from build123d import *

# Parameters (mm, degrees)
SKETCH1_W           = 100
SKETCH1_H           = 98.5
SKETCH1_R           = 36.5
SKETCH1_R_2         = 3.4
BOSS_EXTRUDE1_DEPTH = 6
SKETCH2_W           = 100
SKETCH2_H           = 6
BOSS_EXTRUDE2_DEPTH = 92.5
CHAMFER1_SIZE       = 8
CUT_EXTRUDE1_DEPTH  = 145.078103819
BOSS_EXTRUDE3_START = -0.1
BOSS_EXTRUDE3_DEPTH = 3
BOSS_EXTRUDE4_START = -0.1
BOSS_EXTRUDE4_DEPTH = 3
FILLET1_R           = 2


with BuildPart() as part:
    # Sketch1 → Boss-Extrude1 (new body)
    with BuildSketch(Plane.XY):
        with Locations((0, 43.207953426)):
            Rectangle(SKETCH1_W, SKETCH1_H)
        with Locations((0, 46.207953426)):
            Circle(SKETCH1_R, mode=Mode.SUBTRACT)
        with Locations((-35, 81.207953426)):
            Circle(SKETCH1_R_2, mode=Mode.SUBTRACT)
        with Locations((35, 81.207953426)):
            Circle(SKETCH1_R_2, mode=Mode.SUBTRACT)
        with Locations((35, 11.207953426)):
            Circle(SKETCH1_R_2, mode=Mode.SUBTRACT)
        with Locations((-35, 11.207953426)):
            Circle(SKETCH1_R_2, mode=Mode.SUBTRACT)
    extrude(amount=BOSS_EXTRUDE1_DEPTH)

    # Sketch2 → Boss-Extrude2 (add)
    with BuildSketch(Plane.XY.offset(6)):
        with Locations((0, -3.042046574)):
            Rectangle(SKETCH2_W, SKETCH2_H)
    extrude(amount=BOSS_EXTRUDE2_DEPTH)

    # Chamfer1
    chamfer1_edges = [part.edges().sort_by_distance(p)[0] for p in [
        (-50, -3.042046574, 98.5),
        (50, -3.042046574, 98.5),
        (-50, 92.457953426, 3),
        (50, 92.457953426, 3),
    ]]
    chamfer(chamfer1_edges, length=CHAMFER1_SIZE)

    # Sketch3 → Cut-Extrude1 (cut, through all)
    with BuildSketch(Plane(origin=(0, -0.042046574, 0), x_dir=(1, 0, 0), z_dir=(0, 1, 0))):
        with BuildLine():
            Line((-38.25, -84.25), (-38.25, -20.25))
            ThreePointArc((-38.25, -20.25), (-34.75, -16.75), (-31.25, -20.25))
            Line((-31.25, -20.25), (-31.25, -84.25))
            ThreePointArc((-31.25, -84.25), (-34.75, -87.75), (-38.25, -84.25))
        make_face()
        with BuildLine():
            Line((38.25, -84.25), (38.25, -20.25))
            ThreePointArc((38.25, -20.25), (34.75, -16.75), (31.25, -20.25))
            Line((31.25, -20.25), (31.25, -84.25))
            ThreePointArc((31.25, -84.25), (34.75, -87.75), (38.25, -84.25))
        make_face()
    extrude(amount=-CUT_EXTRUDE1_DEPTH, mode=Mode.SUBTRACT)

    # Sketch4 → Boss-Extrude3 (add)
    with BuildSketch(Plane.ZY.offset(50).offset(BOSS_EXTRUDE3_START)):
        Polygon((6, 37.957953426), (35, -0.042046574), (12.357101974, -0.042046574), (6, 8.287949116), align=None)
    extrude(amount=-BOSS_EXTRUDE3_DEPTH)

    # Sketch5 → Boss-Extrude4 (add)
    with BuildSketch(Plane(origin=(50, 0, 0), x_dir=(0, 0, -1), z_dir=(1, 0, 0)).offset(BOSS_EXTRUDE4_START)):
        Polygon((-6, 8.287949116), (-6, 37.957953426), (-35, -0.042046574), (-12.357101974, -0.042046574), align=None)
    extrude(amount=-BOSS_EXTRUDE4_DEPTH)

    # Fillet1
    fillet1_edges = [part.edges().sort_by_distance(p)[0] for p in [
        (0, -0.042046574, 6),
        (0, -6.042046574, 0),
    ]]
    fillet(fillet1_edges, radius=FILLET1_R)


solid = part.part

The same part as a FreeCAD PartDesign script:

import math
import FreeCAD as App
import Part
import Sketcher
from FreeCAD import Vector
Q = App.Units.Quantity


def edges_at(feature, points):
    """Names of the edges that pass closest to the given points."""
    edges = feature.Shape.Edges
    near = lambda p: min(range(len(edges)), key=lambda i: edges[i].distToShape(Part.Vertex(*p))[0])
    return sorted({f"Edge{near(p) + 1}" for p in points})


def add_polygon(sketch, points):
    """Adds a closed chain of lines whose ends are joined by coincident constraints."""
    first, n = sketch.GeometryCount, len(points)
    for a, b in zip(points, points[1:] + points[:1]):
        sketch.addGeometry(Part.LineSegment(App.Vector(*a, 0), App.Vector(*b, 0)), False)
    for i in range(n):
        sketch.addConstraint(Sketcher.Constraint("Coincident", first + i, 2, first + (i + 1) % n, 1))

doc = App.newDocument("Part")
body = doc.addObject("PartDesign::Body", "Body")

# Sketch on XY plane
sketch1 = doc.addObject("Sketcher::SketchObject", "Sketch")
body.addObject(sketch1)
sketch1.AttachmentSupport = (doc.XY_Plane, [""])
sketch1.MapMode = "FlatFace"
add_polygon(sketch1, [(-50, 92.5), (-50, -6), (50, -6), (50, 92.5)])  # lines 0-3
sketch1.addGeometry(Part.Circle(Vector(-35, 11.2, 0), Vector(0, 0, 1), 3.4), False)  # 4
sketch1.addGeometry(Part.Circle(Vector(35, 11.2, 0), Vector(0, 0, 1), 3.4), False)  # 5
sketch1.addGeometry(Part.Circle(Vector(-35, 81.2, 0), Vector(0, 0, 1), 3.4), False)  # 6
sketch1.addGeometry(Part.Circle(Vector(0, 46.2, 0), Vector(0, 0, 1), 36.5), False)  # 7
sketch1.addGeometry(Part.Circle(Vector(35, 81.2, 0), Vector(0, 0, 1), 3.4), False)  # 8
sketch1.addConstraint(Sketcher.Constraint("Vertical", 0))
sketch1.addConstraint(Sketcher.Constraint("Horizontal", 1))
sketch1.addConstraint(Sketcher.Constraint("Vertical", 2))
sketch1.addConstraint(Sketcher.Constraint("Horizontal", 3))
sketch1.addConstraint(Sketcher.Constraint("Equal", 4, 5))
sketch1.addConstraint(Sketcher.Constraint("Equal", 5, 6))
sketch1.addConstraint(Sketcher.Constraint("Equal", 6, 8))
sketch1.addConstraint(Sketcher.Constraint("Symmetric", 4, 3, 5, 3, -2))
sketch1.addConstraint(Sketcher.Constraint("Symmetric", 6, 3, 8, 3, -2))
sketch1.addConstraint(Sketcher.Constraint("PointOnObject", 7, 3, -2))
sketch1.addConstraint(Sketcher.Constraint("Vertical", 4, 3, 6, 3))
sketch1.addConstraint(Sketcher.Constraint("Diameter", 7, Q("73 mm")))
sketch1.addConstraint(Sketcher.Constraint("Diameter", 4, Q("6.8 mm")))
sketch1.addConstraint(Sketcher.Constraint("DistanceX", 1, 1, 1, 2, Q("100 mm")))
sketch1.addConstraint(Sketcher.Constraint("DistanceY", 0, 2, 0, 1, Q("98.5 mm")))
sketch1.addConstraint(Sketcher.Constraint("DistanceX", 4, 3, -1, 1, Q("35 mm")))
sketch1.addConstraint(Sketcher.Constraint("DistanceX", 0, 2, -1, 1, Q("50 mm")))
sketch1.addConstraint(Sketcher.Constraint("DistanceY", 4, 3, 6, 3, Q("70 mm")))
sketch1.addConstraint(Sketcher.Constraint("DistanceY", 4, 3, 7, 3, Q("35 mm")))
sketch1.addConstraint(Sketcher.Constraint("DistanceY", 0, 2, 4, 3, Q("17.25 mm")))
sketch1.addConstraint(Sketcher.Constraint("DistanceY", -1, 1, 4, 3, Q("11.207953 mm")))
pad1 = doc.addObject("PartDesign::Pad", "Pad")
body.addObject(pad1)
pad1.Profile = sketch1
pad1.Length = 6

# Sketch on XY plane
sketch2 = doc.addObject("Sketcher::SketchObject", "Sketch001")
body.addObject(sketch2)
sketch2.AttachmentSupport = (doc.XY_Plane, [""])
sketch2.MapMode = "FlatFace"
sketch2.AttachmentOffset = App.Placement(Vector(0, 0, 6), App.Rotation())
add_polygon(sketch2, [(-50, 0), (-50, -6), (50, -6), (50, 0)])  # lines 0-3
sketch2.addConstraint(Sketcher.Constraint("Vertical", 0))
sketch2.addConstraint(Sketcher.Constraint("Horizontal", 1))
sketch2.addConstraint(Sketcher.Constraint("Vertical", 2))
sketch2.addConstraint(Sketcher.Constraint("Horizontal", 3))
sketch2.addConstraint(Sketcher.Constraint("DistanceX", 1, 1, 1, 2, Q("100 mm")))
sketch2.addConstraint(Sketcher.Constraint("DistanceY", 0, 2, 0, 1, Q("6 mm")))
sketch2.addConstraint(Sketcher.Constraint("DistanceX", 0, 2, -1, 1, Q("50 mm")))
sketch2.addConstraint(Sketcher.Constraint("DistanceY", 0, 2, -1, 1, Q("6.042047 mm")))
pad2 = doc.addObject("PartDesign::Pad", "Pad001")
body.addObject(pad2)
pad2.Profile = sketch2
pad2.Length = 92.5
doc.recompute()

chamfer = doc.addObject("PartDesign::Chamfer", "Chamfer")
body.addObject(chamfer)
chamfer.Base = (pad2, edges_at(pad2, [
    (-50, -3.042, 98.5),
    (50, -3.042, 98.5),
    (-50, 92.458, 3),
    (50, 92.458, 3),
]))
chamfer.Size = 8

# Sketch on XZ plane
sketch3 = doc.addObject("Sketcher::SketchObject", "Sketch002")
body.addObject(sketch3)
sketch3.AttachmentSupport = (doc.XZ_Plane, [""])
sketch3.MapMode = "FlatFace"
sketch3.AttachmentOffset = App.Placement(Vector(0, 0, 0.042047), App.Rotation())
sketch3.addGeometry(Part.LineSegment(Vector(-38.2, 20.2, 0), Vector(-38.2, 84.2, 0)), False)
sketch3.addGeometry(Part.ArcOfCircle(Part.Circle(Vector(-34.8, 84.2, 0), Vector(0, 0, 1), 3.5), math.radians(0), math.radians(180)), False)
sketch3.addGeometry(Part.LineSegment(Vector(-31.2, 84.2, 0), Vector(-31.2, 20.2, 0)), False)
sketch3.addGeometry(Part.ArcOfCircle(Part.Circle(Vector(-34.8, 20.2, 0), Vector(0, 0, 1), 3.5), math.radians(180), math.radians(360)), False)
sketch3.addGeometry(Part.LineSegment(Vector(38.2, 84.2, 0), Vector(38.2, 20.2, 0)), False)
sketch3.addGeometry(Part.ArcOfCircle(Part.Circle(Vector(34.8, 20.2, 0), Vector(0, 0, 1), 3.5), math.radians(180), math.radians(360)), False)
sketch3.addGeometry(Part.LineSegment(Vector(31.2, 20.2, 0), Vector(31.2, 84.2, 0)), False)
sketch3.addGeometry(Part.ArcOfCircle(Part.Circle(Vector(34.8, 84.2, 0), Vector(0, 0, 1), 3.5), math.radians(0), math.radians(180)), False)
sketch3.addConstraint(Sketcher.Constraint("Tangent", 0, 2, 1, 2))
sketch3.addConstraint(Sketcher.Constraint("Tangent", 1, 1, 2, 1))
sketch3.addConstraint(Sketcher.Constraint("Tangent", 2, 2, 3, 2))
sketch3.addConstraint(Sketcher.Constraint("Tangent", 3, 1, 0, 1))
sketch3.addConstraint(Sketcher.Constraint("Tangent", 4, 2, 5, 2))
sketch3.addConstraint(Sketcher.Constraint("Tangent", 5, 1, 6, 1))
sketch3.addConstraint(Sketcher.Constraint("Tangent", 6, 2, 7, 2))
sketch3.addConstraint(Sketcher.Constraint("Tangent", 7, 1, 4, 1))
sketch3.addConstraint(Sketcher.Constraint("Vertical", 0))
sketch3.addConstraint(Sketcher.Constraint("Vertical", 2))
sketch3.addConstraint(Sketcher.Constraint("Vertical", 4))
sketch3.addConstraint(Sketcher.Constraint("Vertical", 6))
sketch3.addConstraint(Sketcher.Constraint("Equal", 3, 5))
sketch3.addConstraint(Sketcher.Constraint("Symmetric", 3, 3, 5, 3, -2))
sketch3.addConstraint(Sketcher.Constraint("Horizontal", 1, 3, 7, 3))
sketch3.addConstraint(Sketcher.Constraint("Radius", 1, Q("3.5 mm")))
sketch3.addConstraint(Sketcher.Constraint("DistanceY", 0, 1, 0, 2, Q("64 mm")))
sketch3.addConstraint(Sketcher.Constraint("DistanceX", 0, 2, 7, 3, Q("73 mm")))
sketch3.addConstraint(Sketcher.Constraint("DistanceY", -1, 1, 1, 3, Q("84.25 mm")))
pocket1 = doc.addObject("PartDesign::Pocket", "Pocket")
body.addObject(pocket1)
pocket1.Profile = sketch3
pocket1.Type = "ThroughAll"
pocket1.Reversed = True

# Sketch on YZ plane
sketch4 = doc.addObject("Sketcher::SketchObject", "Sketch003")
body.addObject(sketch4)
sketch4.AttachmentSupport = (doc.YZ_Plane, [""])
sketch4.MapMode = "FlatFace"
sketch4.AttachmentOffset = App.Placement(Vector(0, 0, -49.9), App.Rotation())
add_polygon(sketch4, [(0, 35), (38, 6), (8, 6), (0, 12)])  # lines 0-3
sketch4.addConstraint(Sketcher.Constraint("Horizontal", 1))
sketch4.addConstraint(Sketcher.Constraint("Vertical", 3))
sketch4.addConstraint(Sketcher.Constraint("Parallel", 0, 2))
sketch4.addConstraint(Sketcher.Constraint("DistanceY", -1, 1, 0, 2, Q("6 mm")))
sketch4.addConstraint(Sketcher.Constraint("DistanceY", -1, 1, 3, 2, Q("35 mm")))
sketch4.addConstraint(Sketcher.Constraint("DistanceX", 2, 2, 0, 2, Q("38 mm")))
sketch4.addConstraint(Sketcher.Constraint("DistanceY", 3, 1, 3, 2, Q("22.642898 mm")))
sketch4.addConstraint(Sketcher.Constraint("DistanceX", -1, 1, 1, 2, Q("8.287949 mm")))
pad3 = doc.addObject("PartDesign::Pad", "Pad002")
body.addObject(pad3)
pad3.Profile = sketch4
pad3.Length = 3

# Sketch on YZ plane
sketch5 = doc.addObject("Sketcher::SketchObject", "Sketch004")
body.addObject(sketch5)
sketch5.AttachmentSupport = (doc.YZ_Plane, [""])
sketch5.MapMode = "FlatFace"
sketch5.AttachmentOffset = App.Placement(Vector(0, 0, 49.9), App.Rotation())
add_polygon(sketch5, [(8, 6), (38, 6), (0, 35), (0, 12)])  # lines 0-3
sketch5.addConstraint(Sketcher.Constraint("Horizontal", 0))
sketch5.addConstraint(Sketcher.Constraint("Vertical", 2))
sketch5.addConstraint(Sketcher.Constraint("Parallel", 1, 3))
sketch5.addConstraint(Sketcher.Constraint("DistanceY", -1, 1, 0, 2, Q("6 mm")))
sketch5.addConstraint(Sketcher.Constraint("DistanceY", -1, 1, 1, 2, Q("35 mm")))
sketch5.addConstraint(Sketcher.Constraint("DistanceX", 1, 2, 0, 2, Q("38 mm")))
sketch5.addConstraint(Sketcher.Constraint("DistanceY", 2, 2, 2, 1, Q("22.642898 mm")))
sketch5.addConstraint(Sketcher.Constraint("DistanceX", -1, 1, 3, 2, Q("8.287949 mm")))
pad4 = doc.addObject("PartDesign::Pad", "Pad003")
body.addObject(pad4)
pad4.Profile = sketch5
pad4.Length = 3
pad4.Reversed = True
doc.recompute()

fillet = doc.addObject("PartDesign::Fillet", "Fillet")
body.addObject(fillet)
fillet.Base = (pad4, edges_at(pad4, [(0, -0.042, 6), (0, -6.042, 0)]))
fillet.Radius = 2

doc.recompute()
